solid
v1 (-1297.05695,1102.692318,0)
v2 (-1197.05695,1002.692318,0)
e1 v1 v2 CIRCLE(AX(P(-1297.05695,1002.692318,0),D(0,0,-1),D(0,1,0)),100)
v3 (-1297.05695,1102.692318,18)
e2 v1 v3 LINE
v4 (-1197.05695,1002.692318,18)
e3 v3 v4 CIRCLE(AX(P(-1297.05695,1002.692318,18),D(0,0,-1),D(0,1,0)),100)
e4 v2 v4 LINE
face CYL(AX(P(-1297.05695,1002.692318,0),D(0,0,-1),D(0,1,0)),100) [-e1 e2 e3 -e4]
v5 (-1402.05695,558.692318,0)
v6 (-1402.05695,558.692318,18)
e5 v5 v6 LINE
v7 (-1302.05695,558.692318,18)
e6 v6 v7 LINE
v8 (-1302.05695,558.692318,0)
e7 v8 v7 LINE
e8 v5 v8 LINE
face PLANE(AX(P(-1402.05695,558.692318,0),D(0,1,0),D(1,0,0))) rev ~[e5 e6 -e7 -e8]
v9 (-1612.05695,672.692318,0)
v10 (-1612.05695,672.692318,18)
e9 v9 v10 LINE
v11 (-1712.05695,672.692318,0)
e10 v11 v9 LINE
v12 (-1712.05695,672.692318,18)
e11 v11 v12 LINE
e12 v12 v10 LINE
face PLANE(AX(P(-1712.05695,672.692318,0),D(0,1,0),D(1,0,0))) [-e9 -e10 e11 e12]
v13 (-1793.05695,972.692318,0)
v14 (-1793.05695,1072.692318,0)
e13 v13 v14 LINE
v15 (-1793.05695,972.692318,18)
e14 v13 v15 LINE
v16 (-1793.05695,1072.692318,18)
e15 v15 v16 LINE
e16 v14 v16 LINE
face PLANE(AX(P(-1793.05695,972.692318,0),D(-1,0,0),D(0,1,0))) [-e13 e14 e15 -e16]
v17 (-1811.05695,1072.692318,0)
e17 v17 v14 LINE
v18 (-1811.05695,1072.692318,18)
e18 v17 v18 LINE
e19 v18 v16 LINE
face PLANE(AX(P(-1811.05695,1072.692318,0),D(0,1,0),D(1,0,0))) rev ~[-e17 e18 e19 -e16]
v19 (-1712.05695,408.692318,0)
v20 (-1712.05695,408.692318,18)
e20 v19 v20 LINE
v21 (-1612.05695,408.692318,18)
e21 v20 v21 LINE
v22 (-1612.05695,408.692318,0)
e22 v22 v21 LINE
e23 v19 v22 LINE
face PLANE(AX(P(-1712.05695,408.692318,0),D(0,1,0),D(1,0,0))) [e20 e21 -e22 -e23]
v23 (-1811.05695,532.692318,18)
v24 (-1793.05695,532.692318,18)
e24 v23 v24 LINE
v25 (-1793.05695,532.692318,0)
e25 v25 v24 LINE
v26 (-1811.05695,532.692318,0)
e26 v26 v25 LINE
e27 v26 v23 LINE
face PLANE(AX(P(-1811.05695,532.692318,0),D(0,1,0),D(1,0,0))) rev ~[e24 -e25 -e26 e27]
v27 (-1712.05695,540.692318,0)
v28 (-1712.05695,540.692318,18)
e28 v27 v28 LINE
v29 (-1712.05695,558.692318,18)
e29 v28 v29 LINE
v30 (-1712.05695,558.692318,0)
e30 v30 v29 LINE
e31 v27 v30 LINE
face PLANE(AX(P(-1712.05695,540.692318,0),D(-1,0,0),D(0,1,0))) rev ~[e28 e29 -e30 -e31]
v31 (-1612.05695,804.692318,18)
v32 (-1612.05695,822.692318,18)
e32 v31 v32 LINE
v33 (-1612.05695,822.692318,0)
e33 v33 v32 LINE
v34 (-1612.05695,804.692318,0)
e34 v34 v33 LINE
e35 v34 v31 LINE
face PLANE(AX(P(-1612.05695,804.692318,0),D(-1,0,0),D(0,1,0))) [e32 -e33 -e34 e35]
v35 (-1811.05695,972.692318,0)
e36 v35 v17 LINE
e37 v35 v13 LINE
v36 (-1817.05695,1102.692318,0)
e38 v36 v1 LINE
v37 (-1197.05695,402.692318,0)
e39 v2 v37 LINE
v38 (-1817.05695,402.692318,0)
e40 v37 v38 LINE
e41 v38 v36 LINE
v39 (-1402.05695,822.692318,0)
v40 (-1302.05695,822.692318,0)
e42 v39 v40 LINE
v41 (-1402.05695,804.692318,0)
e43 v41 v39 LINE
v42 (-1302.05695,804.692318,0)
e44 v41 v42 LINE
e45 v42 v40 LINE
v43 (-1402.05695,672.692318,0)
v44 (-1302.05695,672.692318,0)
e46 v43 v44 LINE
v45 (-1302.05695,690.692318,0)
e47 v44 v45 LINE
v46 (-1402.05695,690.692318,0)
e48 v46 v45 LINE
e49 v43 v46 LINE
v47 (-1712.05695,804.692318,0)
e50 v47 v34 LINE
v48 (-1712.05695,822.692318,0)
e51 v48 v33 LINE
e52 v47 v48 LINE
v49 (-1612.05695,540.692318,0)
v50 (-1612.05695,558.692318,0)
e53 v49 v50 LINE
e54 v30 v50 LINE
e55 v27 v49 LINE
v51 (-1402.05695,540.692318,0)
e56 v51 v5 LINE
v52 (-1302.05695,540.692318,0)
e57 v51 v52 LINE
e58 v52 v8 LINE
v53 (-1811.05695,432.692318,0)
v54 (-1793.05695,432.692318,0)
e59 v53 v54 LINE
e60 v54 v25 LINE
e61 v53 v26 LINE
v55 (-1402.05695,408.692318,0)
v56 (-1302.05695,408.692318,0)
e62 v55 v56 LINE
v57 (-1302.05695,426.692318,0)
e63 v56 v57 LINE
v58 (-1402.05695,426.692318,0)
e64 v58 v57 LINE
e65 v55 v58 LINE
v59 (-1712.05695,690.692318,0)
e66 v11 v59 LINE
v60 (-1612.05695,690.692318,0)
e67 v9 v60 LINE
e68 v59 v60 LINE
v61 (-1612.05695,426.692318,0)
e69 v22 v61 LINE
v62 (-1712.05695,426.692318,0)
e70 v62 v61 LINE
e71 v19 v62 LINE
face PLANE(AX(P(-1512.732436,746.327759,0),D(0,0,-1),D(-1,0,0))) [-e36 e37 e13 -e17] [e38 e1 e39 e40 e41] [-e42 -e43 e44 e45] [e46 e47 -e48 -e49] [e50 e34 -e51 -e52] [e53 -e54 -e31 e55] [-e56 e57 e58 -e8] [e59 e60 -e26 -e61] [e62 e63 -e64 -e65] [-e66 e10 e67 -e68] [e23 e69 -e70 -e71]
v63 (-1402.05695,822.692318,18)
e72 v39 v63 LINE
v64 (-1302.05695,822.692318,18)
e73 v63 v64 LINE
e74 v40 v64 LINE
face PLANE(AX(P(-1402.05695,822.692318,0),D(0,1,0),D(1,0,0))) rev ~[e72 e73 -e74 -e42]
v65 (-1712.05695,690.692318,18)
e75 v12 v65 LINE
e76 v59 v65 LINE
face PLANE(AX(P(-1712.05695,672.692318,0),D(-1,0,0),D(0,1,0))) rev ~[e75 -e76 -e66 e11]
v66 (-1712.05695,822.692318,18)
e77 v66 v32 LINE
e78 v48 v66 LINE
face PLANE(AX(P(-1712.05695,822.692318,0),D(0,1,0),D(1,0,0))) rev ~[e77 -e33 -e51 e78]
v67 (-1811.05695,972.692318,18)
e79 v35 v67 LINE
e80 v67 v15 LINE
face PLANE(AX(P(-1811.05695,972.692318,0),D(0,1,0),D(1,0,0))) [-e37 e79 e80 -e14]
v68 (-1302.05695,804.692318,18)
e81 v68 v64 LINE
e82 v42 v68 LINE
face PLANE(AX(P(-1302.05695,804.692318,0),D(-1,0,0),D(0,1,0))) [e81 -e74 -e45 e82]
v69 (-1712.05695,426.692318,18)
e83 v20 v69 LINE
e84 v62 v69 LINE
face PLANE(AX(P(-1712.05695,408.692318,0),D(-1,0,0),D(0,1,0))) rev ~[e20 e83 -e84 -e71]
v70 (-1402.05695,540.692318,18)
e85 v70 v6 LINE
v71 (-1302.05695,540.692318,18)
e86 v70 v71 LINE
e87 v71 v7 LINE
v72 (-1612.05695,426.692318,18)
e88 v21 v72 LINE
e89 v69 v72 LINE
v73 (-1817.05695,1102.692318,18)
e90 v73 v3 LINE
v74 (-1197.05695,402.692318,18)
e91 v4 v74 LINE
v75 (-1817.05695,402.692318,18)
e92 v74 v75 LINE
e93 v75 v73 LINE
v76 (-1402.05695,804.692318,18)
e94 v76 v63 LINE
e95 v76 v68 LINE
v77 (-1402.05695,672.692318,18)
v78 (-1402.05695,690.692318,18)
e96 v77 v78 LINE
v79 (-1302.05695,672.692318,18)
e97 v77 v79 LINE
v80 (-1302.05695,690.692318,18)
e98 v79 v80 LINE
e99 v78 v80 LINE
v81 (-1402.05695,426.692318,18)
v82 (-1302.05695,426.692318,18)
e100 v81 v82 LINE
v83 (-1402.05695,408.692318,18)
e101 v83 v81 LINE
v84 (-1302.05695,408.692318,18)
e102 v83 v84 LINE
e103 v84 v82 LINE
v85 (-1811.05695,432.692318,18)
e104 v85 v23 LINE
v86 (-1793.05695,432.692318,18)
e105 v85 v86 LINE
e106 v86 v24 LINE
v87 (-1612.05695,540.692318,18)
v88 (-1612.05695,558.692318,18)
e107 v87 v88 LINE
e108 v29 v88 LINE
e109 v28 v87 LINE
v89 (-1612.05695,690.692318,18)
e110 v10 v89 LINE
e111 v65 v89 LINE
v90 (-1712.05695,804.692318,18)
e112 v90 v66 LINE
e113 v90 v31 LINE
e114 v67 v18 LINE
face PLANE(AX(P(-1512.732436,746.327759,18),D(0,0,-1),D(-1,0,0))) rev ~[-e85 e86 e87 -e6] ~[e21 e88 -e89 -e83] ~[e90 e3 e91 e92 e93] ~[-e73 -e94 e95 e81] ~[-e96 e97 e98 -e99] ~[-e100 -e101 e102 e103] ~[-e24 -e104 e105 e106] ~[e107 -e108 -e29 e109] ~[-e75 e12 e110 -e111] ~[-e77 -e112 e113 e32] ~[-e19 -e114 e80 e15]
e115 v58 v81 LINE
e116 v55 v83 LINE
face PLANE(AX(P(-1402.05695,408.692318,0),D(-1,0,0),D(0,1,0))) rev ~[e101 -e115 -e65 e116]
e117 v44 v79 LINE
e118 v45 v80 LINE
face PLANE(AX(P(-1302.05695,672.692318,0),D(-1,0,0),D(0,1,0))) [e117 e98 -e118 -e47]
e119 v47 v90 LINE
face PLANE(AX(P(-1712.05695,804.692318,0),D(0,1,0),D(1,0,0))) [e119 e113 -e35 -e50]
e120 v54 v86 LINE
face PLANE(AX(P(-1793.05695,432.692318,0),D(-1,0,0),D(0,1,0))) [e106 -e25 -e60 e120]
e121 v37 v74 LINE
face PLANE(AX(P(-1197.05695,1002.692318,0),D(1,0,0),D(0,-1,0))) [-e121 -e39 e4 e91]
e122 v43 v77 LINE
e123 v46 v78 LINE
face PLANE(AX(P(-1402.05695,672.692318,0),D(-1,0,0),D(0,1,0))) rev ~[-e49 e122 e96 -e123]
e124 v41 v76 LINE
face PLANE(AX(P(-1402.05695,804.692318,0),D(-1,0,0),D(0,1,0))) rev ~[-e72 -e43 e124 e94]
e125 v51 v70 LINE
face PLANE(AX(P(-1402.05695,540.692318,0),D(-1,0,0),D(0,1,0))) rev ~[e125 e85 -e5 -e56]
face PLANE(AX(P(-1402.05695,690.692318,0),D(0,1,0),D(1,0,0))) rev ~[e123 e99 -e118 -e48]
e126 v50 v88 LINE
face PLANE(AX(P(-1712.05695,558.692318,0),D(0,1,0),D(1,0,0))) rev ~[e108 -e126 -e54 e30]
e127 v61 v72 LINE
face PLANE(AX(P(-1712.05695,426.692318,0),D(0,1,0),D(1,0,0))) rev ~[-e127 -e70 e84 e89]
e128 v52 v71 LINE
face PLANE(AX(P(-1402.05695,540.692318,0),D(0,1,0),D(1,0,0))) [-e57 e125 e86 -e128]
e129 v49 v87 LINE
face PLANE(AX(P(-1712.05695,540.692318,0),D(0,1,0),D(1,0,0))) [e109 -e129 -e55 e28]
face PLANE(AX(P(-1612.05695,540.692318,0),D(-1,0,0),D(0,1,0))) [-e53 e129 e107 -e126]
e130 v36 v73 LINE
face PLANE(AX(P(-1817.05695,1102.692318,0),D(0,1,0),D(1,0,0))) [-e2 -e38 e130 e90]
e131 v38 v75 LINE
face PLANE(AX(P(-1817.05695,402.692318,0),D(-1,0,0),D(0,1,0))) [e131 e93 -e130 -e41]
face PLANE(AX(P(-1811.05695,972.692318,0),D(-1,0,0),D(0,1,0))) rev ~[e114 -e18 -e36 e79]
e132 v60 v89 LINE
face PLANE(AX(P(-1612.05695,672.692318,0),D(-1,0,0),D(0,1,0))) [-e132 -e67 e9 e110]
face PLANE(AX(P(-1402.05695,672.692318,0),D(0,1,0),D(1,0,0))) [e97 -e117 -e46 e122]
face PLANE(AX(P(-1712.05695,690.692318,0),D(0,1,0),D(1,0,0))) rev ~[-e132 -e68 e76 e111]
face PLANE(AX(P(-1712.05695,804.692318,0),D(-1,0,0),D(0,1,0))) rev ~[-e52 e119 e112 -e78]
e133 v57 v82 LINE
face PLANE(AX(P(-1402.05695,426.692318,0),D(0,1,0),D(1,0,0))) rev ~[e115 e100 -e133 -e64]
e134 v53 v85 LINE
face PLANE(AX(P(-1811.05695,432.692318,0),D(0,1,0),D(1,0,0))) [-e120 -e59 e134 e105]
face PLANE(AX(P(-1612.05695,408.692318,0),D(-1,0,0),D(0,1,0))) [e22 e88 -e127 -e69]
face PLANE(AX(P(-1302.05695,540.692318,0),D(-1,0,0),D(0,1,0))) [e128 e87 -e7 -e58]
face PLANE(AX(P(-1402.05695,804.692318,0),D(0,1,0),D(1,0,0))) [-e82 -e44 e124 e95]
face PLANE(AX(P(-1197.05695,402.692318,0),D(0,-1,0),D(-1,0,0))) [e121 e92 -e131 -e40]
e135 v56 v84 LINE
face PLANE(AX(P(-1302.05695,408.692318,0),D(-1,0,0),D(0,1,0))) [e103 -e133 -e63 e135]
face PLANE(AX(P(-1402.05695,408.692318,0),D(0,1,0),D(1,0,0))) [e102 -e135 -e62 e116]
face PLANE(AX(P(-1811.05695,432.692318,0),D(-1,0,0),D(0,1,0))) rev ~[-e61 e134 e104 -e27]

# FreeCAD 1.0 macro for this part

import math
import FreeCAD as App
import Part
import Sketcher
from FreeCAD import Vector
Q = App.Units.Quantity

doc = App.newDocument("Part")
body = doc.addObject("PartDesign::Body", "Body")

# Sketch on XY plane
sketch1 = body.newObject("Sketcher::SketchObject", "Sketch")
sketch1.AttachmentSupport = (doc.getObject("XY_Plane"), [""])
sketch1.MapMode = "FlatFace"
sketch1.addGeometry([
    Part.LineSegment(Vector(-1817, 403, 0), Vector(-1197, 403, 0)),  # 0
    Part.LineSegment(Vector(-1197, 403, 0), Vector(-1197, 1003, 0)),  # 1
    Part.ArcOfCircle(Part.Circle(Vector(-1297, 1003, 0), Vector(0, 0, 1), 100), math.radians(0), math.radians(90)),  # 2
    Part.LineSegment(Vector(-1297, 1103, 0), Vector(-1817, 1103, 0)),  # 3
    Part.LineSegment(Vector(-1817, 1103, 0), Vector(-1817, 403, 0)),  # 4
    Part.LineSegment(Vector(-1402, 409, 0), Vector(-1402, 427, 0)),  # 5
    Part.LineSegment(Vector(-1402, 427, 0), Vector(-1302, 427, 0)),  # 6
    Part.LineSegment(Vector(-1302, 427, 0), Vector(-1302, 409, 0)),  # 7
    Part.LineSegment(Vector(-1302, 409, 0), Vector(-1402, 409, 0)),  # 8
    Part.LineSegment(Vector(-1402, 541, 0), Vector(-1402, 559, 0)),  # 9
    Part.LineSegment(Vector(-1402, 559, 0), Vector(-1302, 559, 0)),  # 10
    Part.LineSegment(Vector(-1302, 559, 0), Vector(-1302, 541, 0)),  # 11
    Part.LineSegment(Vector(-1302, 541, 0), Vector(-1402, 541, 0)),  # 12
    Part.LineSegment(Vector(-1402, 673, 0), Vector(-1402, 691, 0)),  # 13
    Part.LineSegment(Vector(-1402, 691, 0), Vector(-1302, 691, 0)),  # 14
    Part.LineSegment(Vector(-1302, 691, 0), Vector(-1302, 673, 0)),  # 15
    Part.LineSegment(Vector(-1302, 673, 0), Vector(-1402, 673, 0)),  # 16
    Part.LineSegment(Vector(-1712, 409, 0), Vector(-1712, 427, 0)),  # 17
    Part.LineSegment(Vector(-1712, 427, 0), Vector(-1612, 427, 0)),  # 18
    Part.LineSegment(Vector(-1612, 427, 0), Vector(-1612, 409, 0)),  # 19
    Part.LineSegment(Vector(-1612, 409, 0), Vector(-1712, 409, 0)),  # 20
    Part.LineSegment(Vector(-1712, 541, 0), Vector(-1712, 559, 0)),  # 21
    Part.LineSegment(Vector(-1712, 559, 0), Vector(-1612, 559, 0)),  # 22
    Part.LineSegment(Vector(-1612, 559, 0), Vector(-1612, 541, 0)),  # 23
    Part.LineSegment(Vector(-1612, 541, 0), Vector(-1712, 541, 0)),  # 24
    Part.LineSegment(Vector(-1811, 433, 0), Vector(-1811, 533, 0)),  # 25
    Part.LineSegment(Vector(-1811, 533, 0), Vector(-1793, 533, 0)),  # 26
    Part.LineSegment(Vector(-1793, 533, 0), Vector(-1793, 433, 0)),  # 27
    Part.LineSegment(Vector(-1793, 433, 0), Vector(-1811, 433, 0)),  # 28
    Part.LineSegment(Vector(-1712, 673, 0), Vector(-1712, 691, 0)),  # 29
    Part.LineSegment(Vector(-1712, 691, 0), Vector(-1612, 691, 0)),  # 30
    Part.LineSegment(Vector(-1612, 691, 0), Vector(-1612, 673, 0)),  # 31
    Part.LineSegment(Vector(-1612, 673, 0), Vector(-1712, 673, 0)),  # 32
    Part.LineSegment(Vector(-1402, 805, 0), Vector(-1402, 823, 0)),  # 33
    Part.LineSegment(Vector(-1402, 823, 0), Vector(-1302, 823, 0)),  # 34
    Part.LineSegment(Vector(-1302, 823, 0), Vector(-1302, 805, 0)),  # 35
    Part.LineSegment(Vector(-1302, 805, 0), Vector(-1402, 805, 0)),  # 36
    Part.LineSegment(Vector(-1712, 805, 0), Vector(-1712, 823, 0)),  # 37
    Part.LineSegment(Vector(-1712, 823, 0), Vector(-1612, 823, 0)),  # 38
    Part.LineSegment(Vector(-1612, 823, 0), Vector(-1612, 805, 0)),  # 39
    Part.LineSegment(Vector(-1612, 805, 0), Vector(-1712, 805, 0)),  # 40
    Part.LineSegment(Vector(-1811, 973, 0), Vector(-1811, 1073, 0)),  # 41
    Part.LineSegment(Vector(-1811, 1073, 0), Vector(-1793, 1073, 0)),  # 42
    Part.LineSegment(Vector(-1793, 1073, 0), Vector(-1793, 973, 0)),  # 43
    Part.LineSegment(Vector(-1793, 973, 0), Vector(-1811, 973, 0)),  # 44
], False)
sketch1.addConstraint([
    Sketcher.Constraint("Coincident", 0, 2, 1, 1),
    Sketcher.Constraint("Tangent", 1, 2, 2, 1),
    Sketcher.Constraint("Tangent", 2, 2, 3, 1),
    Sketcher.Constraint("Coincident", 3, 2, 4, 1),
    Sketcher.Constraint("Coincident", 4, 2, 0, 1),
    Sketcher.Constraint("Coincident", 5, 2, 6, 1),
    Sketcher.Constraint("Coincident", 6, 2, 7, 1),
    Sketcher.Constraint("Coincident", 7, 2, 8, 1),
    Sketcher.Constraint("Coincident", 8, 2, 5, 1),
    Sketcher.Constraint("Coincident", 9, 2, 10, 1),
    Sketcher.Constraint("Coincident", 10, 2, 11, 1),
    Sketcher.Constraint("Coincident", 11, 2, 12, 1),
    Sketcher.Constraint("Coincident", 12, 2, 9, 1),
    Sketcher.Constraint("Coincident", 13, 2, 14, 1),
    Sketcher.Constraint("Coincident", 14, 2, 15, 1),
    Sketcher.Constraint("Coincident", 15, 2, 16, 1),
    Sketcher.Constraint("Coincident", 16, 2, 13, 1),
    Sketcher.Constraint("Coincident", 17, 2, 18, 1),
    Sketcher.Constraint("Coincident", 18, 2, 19, 1),
    Sketcher.Constraint("Coincident", 19, 2, 20, 1),
    Sketcher.Constraint("Coincident", 20, 2, 17, 1),
    Sketcher.Constraint("Coincident", 21, 2, 22, 1),
    Sketcher.Constraint("Coincident", 22, 2, 23, 1),
    Sketcher.Constraint("Coincident", 23, 2, 24, 1),
    Sketcher.Constraint("Coincident", 24, 2, 21, 1),
    Sketcher.Constraint("Coincident", 25, 2, 26, 1),
    Sketcher.Constraint("Coincident", 26, 2, 27, 1),
    Sketcher.Constraint("Coincident", 27, 2, 28, 1),
    Sketcher.Constraint("Coincident", 28, 2, 25, 1),
    Sketcher.Constraint("Coincident", 29, 2, 30, 1),
    Sketcher.Constraint("Coincident", 30, 2, 31, 1),
    Sketcher.Constraint("Coincident", 31, 2, 32, 1),
    Sketcher.Constraint("Coincident", 32, 2, 29, 1),
    Sketcher.Constraint("Coincident", 33, 2, 34, 1),
    Sketcher.Constraint("Coincident", 34, 2, 35, 1),
    Sketcher.Constraint("Coincident", 35, 2, 36, 1),
    Sketcher.Constraint("Coincident", 36, 2, 33, 1),
    Sketcher.Constraint("Coincident", 37, 2, 38, 1),
    Sketcher.Constraint("Coincident", 38, 2, 39, 1),
    Sketcher.Constraint("Coincident", 39, 2, 40, 1),
    Sketcher.Constraint("Coincident", 40, 2, 37, 1),
    Sketcher.Constraint("Coincident", 41, 2, 42, 1),
    Sketcher.Constraint("Coincident", 42, 2, 43, 1),
    Sketcher.Constraint("Coincident", 43, 2, 44, 1),
    Sketcher.Constraint("Coincident", 44, 2, 41, 1),
    Sketcher.Constraint("Horizontal", 0),
    Sketcher.Constraint("Vertical", 1),
    Sketcher.Constraint("Horizontal", 3),
    Sketcher.Constraint("Vertical", 4),
    Sketcher.Constraint("Vertical", 5),
    Sketcher.Constraint("Horizontal", 6),
    Sketcher.Constraint("Vertical", 7),
    Sketcher.Constraint("Horizontal", 8),
    Sketcher.Constraint("Vertical", 9),
    Sketcher.Constraint("Horizontal", 10),
    Sketcher.Constraint("Vertical", 11),
    Sketcher.Constraint("Horizontal", 12),
    Sketcher.Constraint("Vertical", 13),
    Sketcher.Constraint("Horizontal", 14),
    Sketcher.Constraint("Vertical", 15),
    Sketcher.Constraint("Horizontal", 16),
    Sketcher.Constraint("Vertical", 17),
    Sketcher.Constraint("Horizontal", 18),
    Sketcher.Constraint("Vertical", 19),
    Sketcher.Constraint("Horizontal", 20),
    Sketcher.Constraint("Vertical", 21),
    Sketcher.Constraint("Horizontal", 22),
    Sketcher.Constraint("Vertical", 23),
    Sketcher.Constraint("Horizontal", 24),
    Sketcher.Constraint("Vertical", 25),
    Sketcher.Constraint("Horizontal", 26),
    Sketcher.Constraint("Vertical", 27),
    Sketcher.Constraint("Horizontal", 28),
    Sketcher.Constraint("Vertical", 29),
    Sketcher.Constraint("Horizontal", 30),
    Sketcher.Constraint("Vertical", 31),
    Sketcher.Constraint("Horizontal", 32),
    Sketcher.Constraint("Vertical", 33),
    Sketcher.Constraint("Horizontal", 34),
    Sketcher.Constraint("Vertical", 35),
    Sketcher.Constraint("Horizontal", 36),
    Sketcher.Constraint("Vertical", 37),
    Sketcher.Constraint("Horizontal", 38),
    Sketcher.Constraint("Vertical", 39),
    Sketcher.Constraint("Horizontal", 40),
    Sketcher.Constraint("Vertical", 41),
    Sketcher.Constraint("Horizontal", 42),
    Sketcher.Constraint("Vertical", 43),
    Sketcher.Constraint("Horizontal", 44),
    Sketcher.Constraint("Horizontal", 6, 2, 17, 2),
    Sketcher.Constraint("Horizontal", 8, 2, 19, 2),
    Sketcher.Constraint("Horizontal", 10, 2, 21, 2),
    Sketcher.Constraint("Horizontal", 12, 2, 23, 2),
    Sketcher.Constraint("Horizontal", 14, 2, 29, 2),
    Sketcher.Constraint("Horizontal", 16, 2, 31, 2),
    Sketcher.Constraint("Horizontal", 34, 2, 37, 2),
    Sketcher.Constraint("Horizontal", 36, 2, 39, 2),
    Sketcher.Constraint("Vertical", 8, 2, 9, 2),
    Sketcher.Constraint("Vertical", 7, 2, 10, 2),
    Sketcher.Constraint("Vertical", 12, 2, 13, 2),
    Sketcher.Constraint("Vertical", 11, 2, 14, 2),
    Sketcher.Constraint("Vertical", 20, 2, 21, 2),
    Sketcher.Constraint("Vertical", 19, 2, 22, 2),
    Sketcher.Constraint("Vertical", 24, 2, 29, 2),
    Sketcher.Constraint("Vertical", 23, 2, 30, 2),
    Sketcher.Constraint("Vertical", 16, 2, 33, 2),
    Sketcher.Constraint("Vertical", 15, 2, 34, 2),
    Sketcher.Constraint("Vertical", 32, 2, 37, 2),
    Sketcher.Constraint("Vertical", 31, 2, 38, 2),
    Sketcher.Constraint("Vertical", 28, 2, 41, 2),
    Sketcher.Constraint("Vertical", 27, 2, 42, 2),
    Sketcher.Constraint("Equal", 16, 18),
    Sketcher.Constraint("Equal", 44, 5),
    Sketcher.Constraint("Equal", 7, 9),
    Sketcher.Constraint("Equal", 11, 13),
    Sketcher.Constraint("Equal", 40, 25),
    Sketcher.Constraint("Equal", 31, 33),
    Sketcher.Constraint("Equal", 27, 41),
    Sketcher.Constraint("Radius", 2, Q("100 mm")),
    Sketcher.Constraint("DistanceX", 0, 1, 0, 2, Q("620 mm")),
    Sketcher.Constraint("DistanceX", 6, 1, 6, 2, Q("100 mm")),
    Sketcher.Constraint("DistanceX", 26, 1, 26, 2, Q("18 mm")),
    Sketcher.Constraint("DistanceY", 1, 1, 1, 2, Q("600 mm")),
    Sketcher.Constraint("DistanceX", 5, 2, 0, 2, Q("205 mm")),
    Sketcher.Constraint("DistanceY", 0, 2, 5, 2, Q("24 mm")),
    Sketcher.Constraint("DistanceY", 5, 2, 9, 2, Q("132 mm")),
    Sketcher.Constraint("DistanceY", 9, 2, 13, 2, Q("132 mm")),
    Sketcher.Constraint("DistanceX", 4, 2, 17, 2, Q("105 mm")),
    Sketcher.Constraint("DistanceX", 25, 2, 24, 2, Q("99 mm")),
    Sketcher.Constraint("DistanceY", 25, 2, 24, 2, Q("8 mm")),
    Sketcher.Constraint("DistanceY", 13, 2, 33, 2, Q("132 mm")),
    Sketcher.Constraint("DistanceY", 41, 2, 3, 2, Q("30 mm")),
    Sketcher.Constraint("DistanceX", 2, 3, -1, 1, Q("1297.05695 mm")),
    Sketcher.Constraint("DistanceY", -1, 1, 2, 3, Q("1002.692318 mm")),
])
pad1 = body.newObject("PartDesign::Pad", "Pad")
pad1.Profile = sketch1
pad1.Length = 18

doc.recompute()
